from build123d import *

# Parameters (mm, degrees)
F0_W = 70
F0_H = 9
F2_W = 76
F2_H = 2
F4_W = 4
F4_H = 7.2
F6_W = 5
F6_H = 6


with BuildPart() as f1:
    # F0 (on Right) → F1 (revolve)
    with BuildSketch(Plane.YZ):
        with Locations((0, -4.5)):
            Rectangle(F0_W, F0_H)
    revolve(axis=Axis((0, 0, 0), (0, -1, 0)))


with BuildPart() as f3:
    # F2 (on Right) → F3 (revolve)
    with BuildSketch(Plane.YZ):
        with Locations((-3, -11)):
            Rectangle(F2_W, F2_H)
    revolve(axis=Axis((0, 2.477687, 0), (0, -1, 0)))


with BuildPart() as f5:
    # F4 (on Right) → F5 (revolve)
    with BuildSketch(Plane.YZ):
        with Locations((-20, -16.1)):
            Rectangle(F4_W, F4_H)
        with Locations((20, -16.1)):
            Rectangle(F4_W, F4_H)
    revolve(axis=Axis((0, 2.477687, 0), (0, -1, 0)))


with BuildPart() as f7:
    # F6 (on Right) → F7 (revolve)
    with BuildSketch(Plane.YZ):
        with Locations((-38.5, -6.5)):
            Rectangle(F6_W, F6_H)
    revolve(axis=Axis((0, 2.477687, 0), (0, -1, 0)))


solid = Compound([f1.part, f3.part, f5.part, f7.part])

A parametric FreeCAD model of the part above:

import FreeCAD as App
import Part
import Sketcher
from FreeCAD import Vector

doc = App.newDocument("Part")
params = doc.addObject("Spreadsheet::Sheet", "Params")
for row, (alias, value) in enumerate([
    ("sketch1_width", "70 mm"),
    ("sketch1_height", "9 mm"),
    ("revolution_angle", "360 deg"),
    ("sketch2_width", "76 mm"),
    ("sketch2_height", "2 mm"),
    ("revolution2_angle", "360 deg"),
    ("sketch3_width", "4 mm"),
    ("sketch3_height", "7.2 mm"),
    ("revolution3_angle", "360 deg"),
    ("sketch4_width", "5 mm"),
    ("sketch4_height", "6 mm"),
    ("revolution4_angle", "360 deg"),
], start=1):
    params.set(f"A{row}", alias)
    params.set(f"B{row}", "=" + value)
    params.setAlias(f"B{row}", alias)

body = doc.addObject("PartDesign::Body", "Body")

# Sketch on YZ plane
sketch1 = doc.addObject("Sketcher::SketchObject", "Sketch")
body.addObject(sketch1)
sketch1.AttachmentSupport = (doc.YZ_Plane, [""])
sketch1.MapMode = "FlatFace"
sketch1.addGeometry(Part.LineSegment(Vector(-35, 0, 0), Vector(-35, -9, 0)), False)
sketch1.addGeometry(Part.LineSegment(Vector(-35, -9, 0), Vector(35, -9, 0)), False)
sketch1.addGeometry(Part.LineSegment(Vector(35, -9, 0), Vector(35, 0, 0)), False)
sketch1.addGeometry(Part.LineSegment(Vector(35, 0, 0), Vector(-35, 0, 0)), False)
sketch1.addConstraint(Sketcher.Constraint("Coincident", 0, 2, 1, 1))
sketch1.addConstraint(Sketcher.Constraint("Coincident", 1, 2, 2, 1))
sketch1.addConstraint(Sketcher.Constraint("Coincident", 2, 2, 3, 1))
sketch1.addConstraint(Sketcher.Constraint("Coincident", 3, 2, 0, 1))
sketch1.addConstraint(Sketcher.Constraint("Vertical", 0))
sketch1.addConstraint(Sketcher.Constraint("Horizontal", 1))
sketch1.addConstraint(Sketcher.Constraint("Vertical", 2))
sketch1.addConstraint(Sketcher.Constraint("Horizontal", 3))
sketch1.addConstraint(Sketcher.Constraint("Symmetric", 2, 2, 3, 2, -1, 1))
sketch1.addConstraint(Sketcher.Constraint("DistanceX", 1, 1, 1, 2, 70.0))
sketch1.addConstraint(Sketcher.Constraint("DistanceY", 0, 2, 0, 1, 9.0))
sketch1.setExpression("Constraints[9]", "Params.sketch1_width")
sketch1.setExpression("Constraints[10]", "Params.sketch1_height")
revolution = doc.addObject("PartDesign::Revolution", "Revolution")
body.addObject(revolution)
revolution.Profile = sketch1
revolution.ReferenceAxis = (sketch1, ["H_Axis"])
revolution.setExpression("Angle", "Params.revolution_angle")
body2 = doc.addObject("PartDesign::Body", "Body001")

# Sketch on YZ plane
sketch2 = doc.addObject("Sketcher::SketchObject", "Sketch001")
body2.addObject(sketch2)
sketch2.AttachmentSupport = (doc.getObject("YZ_Plane001"), [""])
sketch2.MapMode = "FlatFace"
sketch2.addGeometry(Part.LineSegment(Vector(-41, -10, 0), Vector(-41, -12, 0)), False)
sketch2.addGeometry(Part.LineSegment(Vector(-41, -12, 0), Vector(35, -12, 0)), False)
sketch2.addGeometry(Part.LineSegment(Vector(35, -12, 0), Vector(35, -10, 0)), False)
sketch2.addGeometry(Part.LineSegment(Vector(35, -10, 0), Vector(-41, -10, 0)), False)
sketch2.addConstraint(Sketcher.Constraint("Coincident", 0, 2, 1, 1))
sketch2.addConstraint(Sketcher.Constraint("Coincident", 1, 2, 2, 1))
sketch2.addConstraint(Sketcher.Constraint("Coincident", 2, 2, 3, 1))
sketch2.addConstraint(Sketcher.Constraint("Coincident", 3, 2, 0, 1))
sketch2.addConstraint(Sketcher.Constraint("Vertical", 0))
sketch2.addConstraint(Sketcher.Constraint("Horizontal", 1))
sketch2.addConstraint(Sketcher.Constraint("Vertical", 2))
sketch2.addConstraint(Sketcher.Constraint("Horizontal", 3))
sketch2.addConstraint(Sketcher.Constraint("DistanceX", 1, 1, 1, 2, 76.0))
sketch2.addConstraint(Sketcher.Constraint("DistanceY", 0, 2, 0, 1, 2.0))
sketch2.addConstraint(Sketcher.Constraint("DistanceX", 0, 2, -1, 1, 41.0))
sketch2.addConstraint(Sketcher.Constraint("DistanceY", 0, 2, -1, 1, 12.0))
sketch2.setExpression("Constraints[8]", "Params.sketch2_width")
sketch2.setExpression("Constraints[9]", "Params.sketch2_height")
revolution2 = doc.addObject("PartDesign::Revolution", "Revolution001")
body2.addObject(revolution2)
revolution2.Profile = sketch2
revolution2.ReferenceAxis = (sketch2, ["H_Axis"])
revolution2.setExpression("Angle", "Params.revolution2_angle")
body3 = doc.addObject("PartDesign::Body", "Body002")
body3.AllowCompound = True

# Sketch on YZ plane
sketch3 = doc.addObject("Sketcher::SketchObject", "Sketch002")
body3.addObject(sketch3)
sketch3.AttachmentSupport = (doc.getObject("YZ_Plane002"), [""])
sketch3.MapMode = "FlatFace"
sketch3.addGeometry(Part.LineSegment(Vector(-22, -12.5, 0), Vector(-22, -19.7, 0)), False)
sketch3.addGeometry(Part.LineSegment(Vector(-22, -19.7, 0), Vector(-18, -19.7, 0)), False)
sketch3.addGeometry(Part.LineSegment(Vector(-18, -19.7, 0), Vector(-18, -12.5, 0)), False)
sketch3.addGeometry(Part.LineSegment(Vector(-18, -12.5, 0), Vector(-22, -12.5, 0)), False)
sketch3.addGeometry(Part.LineSegment(Vector(18, -12.5, 0), Vector(18, -19.7, 0)), False)
sketch3.addGeometry(Part.LineSegment(Vector(18, -19.7, 0), Vector(22, -19.7, 0)), False)
sketch3.addGeometry(Part.LineSegment(Vector(22, -19.7, 0), Vector(22, -12.5, 0)), False)
sketch3.addGeometry(Part.LineSegment(Vector(22, -12.5, 0), Vector(18, -12.5, 0)), False)
sketch3.addConstraint(Sketcher.Constraint("Coincident", 0, 2, 1, 1))
sketch3.addConstraint(Sketcher.Constraint("Coincident", 1, 2, 2, 1))
sketch3.addConstraint(Sketcher.Constraint("Coincident", 2, 2, 3, 1))
sketch3.addConstraint(Sketcher.Constraint("Coincident", 3, 2, 0, 1))
sketch3.addConstraint(Sketcher.Constraint("Coincident", 4, 2, 5, 1))
sketch3.addConstraint(Sketcher.Constraint("Coincident", 5, 2, 6, 1))
sketch3.addConstraint(Sketcher.Constraint("Coincident", 6, 2, 7, 1))
sketch3.addConstraint(Sketcher.Constraint("Coincident", 7, 2, 4, 1))
sketch3.addConstraint(Sketcher.Constraint("Vertical", 0))
sketch3.addConstraint(Sketcher.Constraint("Horizontal", 1))
sketch3.addConstraint(Sketcher.Constraint("Vertical", 2))
sketch3.addConstraint(Sketcher.Constraint("Horizontal", 3))
sketch3.addConstraint(Sketcher.Constraint("Vertical", 4))
sketch3.addConstraint(Sketcher.Constraint("Horizontal", 5))
sketch3.addConstraint(Sketcher.Constraint("Vertical", 6))
sketch3.addConstraint(Sketcher.Constraint("Horizontal", 7))
sketch3.addConstraint(Sketcher.Constraint("Symmetric", 1, 2, 4, 2, -2))
sketch3.addConstraint(Sketcher.Constraint("Symmetric", 3, 2, 6, 2, -2))
sketch3.addConstraint(Sketcher.Constraint("DistanceX", 1, 1, 1, 2, 4.0))
sketch3.addConstraint(Sketcher.Constraint("DistanceY", 0, 2, 0, 1, 7.2))
sketch3.addConstraint(Sketcher.Constraint("DistanceX", 0, 2, -1, 1, 22.0))
sketch3.addConstraint(Sketcher.Constraint("DistanceY", 0, 2, -1, 1, 19.7))
sketch3.setExpression("Constraints[18]", "Params.sketch3_width")
sketch3.setExpression("Constraints[19]", "Params.sketch3_height")
revolution3 = doc.addObject("PartDesign::Revolution", "Revolution002")
body3.addObject(revolution3)
revolution3.Profile = sketch3
revolution3.ReferenceAxis = (sketch3, ["H_Axis"])
revolution3.setExpression("Angle", "Params.revolution3_angle")
body4 = doc.addObject("PartDesign::Body", "Body003")

# Sketch on YZ plane
sketch4 = doc.addObject("Sketcher::SketchObject", "Sketch003")
body4.addObject(sketch4)
sketch4.AttachmentSupport = (doc.getObject("YZ_Plane003"), [""])
sketch4.MapMode = "FlatFace"
sketch4.addGeometry(Part.LineSegment(Vector(-41, -3.5, 0), Vector(-41, -9.5, 0)), False)
sketch4.addGeometry(Part.LineSegment(Vector(-41, -9.5, 0), Vector(-36, -9.5, 0)), False)
sketch4.addGeometry(Part.LineSegment(Vector(-36, -9.5, 0), Vector(-36, -3.5, 0)), False)
sketch4.addGeometry(Part.LineSegment(Vector(-36, -3.5, 0), Vector(-41, -3.5, 0)), False)
sketch4.addConstraint(Sketcher.Constraint("Coincident", 0, 2, 1, 1))
sketch4.addConstraint(Sketcher.Constraint("Coincident", 1, 2, 2, 1))
sketch4.addConstraint(Sketcher.Constraint("Coincident", 2, 2, 3, 1))
sketch4.addConstraint(Sketcher.Constraint("Coincident", 3, 2, 0, 1))
sketch4.addConstraint(Sketcher.Constraint("Vertical", 0))
sketch4.addConstraint(Sketcher.Constraint("Horizontal", 1))
sketch4.addConstraint(Sketcher.Constraint("Vertical", 2))
sketch4.addConstraint(Sketcher.Constraint("Horizontal", 3))
sketch4.addConstraint(Sketcher.Constraint("DistanceX", 1, 1, 1, 2, 5.0))
sketch4.addConstraint(Sketcher.Constraint("DistanceY", 0, 2, 0, 1, 6.0))
sketch4.addConstraint(Sketcher.Constraint("DistanceX", 0, 2, -1, 1, 41.0))
sketch4.addConstraint(Sketcher.Constraint("DistanceY", 0, 2, -1, 1, 9.5))
sketch4.setExpression("Constraints[8]", "Params.sketch4_width")
sketch4.setExpression("Constraints[9]", "Params.sketch4_height")
revolution4 = doc.addObject("PartDesign::Revolution", "Revolution003")
body4.addObject(revolution4)
revolution4.Profile = sketch4
revolution4.ReferenceAxis = (sketch4, ["H_Axis"])
revolution4.setExpression("Angle", "Params.revolution4_angle")

doc.recompute()
